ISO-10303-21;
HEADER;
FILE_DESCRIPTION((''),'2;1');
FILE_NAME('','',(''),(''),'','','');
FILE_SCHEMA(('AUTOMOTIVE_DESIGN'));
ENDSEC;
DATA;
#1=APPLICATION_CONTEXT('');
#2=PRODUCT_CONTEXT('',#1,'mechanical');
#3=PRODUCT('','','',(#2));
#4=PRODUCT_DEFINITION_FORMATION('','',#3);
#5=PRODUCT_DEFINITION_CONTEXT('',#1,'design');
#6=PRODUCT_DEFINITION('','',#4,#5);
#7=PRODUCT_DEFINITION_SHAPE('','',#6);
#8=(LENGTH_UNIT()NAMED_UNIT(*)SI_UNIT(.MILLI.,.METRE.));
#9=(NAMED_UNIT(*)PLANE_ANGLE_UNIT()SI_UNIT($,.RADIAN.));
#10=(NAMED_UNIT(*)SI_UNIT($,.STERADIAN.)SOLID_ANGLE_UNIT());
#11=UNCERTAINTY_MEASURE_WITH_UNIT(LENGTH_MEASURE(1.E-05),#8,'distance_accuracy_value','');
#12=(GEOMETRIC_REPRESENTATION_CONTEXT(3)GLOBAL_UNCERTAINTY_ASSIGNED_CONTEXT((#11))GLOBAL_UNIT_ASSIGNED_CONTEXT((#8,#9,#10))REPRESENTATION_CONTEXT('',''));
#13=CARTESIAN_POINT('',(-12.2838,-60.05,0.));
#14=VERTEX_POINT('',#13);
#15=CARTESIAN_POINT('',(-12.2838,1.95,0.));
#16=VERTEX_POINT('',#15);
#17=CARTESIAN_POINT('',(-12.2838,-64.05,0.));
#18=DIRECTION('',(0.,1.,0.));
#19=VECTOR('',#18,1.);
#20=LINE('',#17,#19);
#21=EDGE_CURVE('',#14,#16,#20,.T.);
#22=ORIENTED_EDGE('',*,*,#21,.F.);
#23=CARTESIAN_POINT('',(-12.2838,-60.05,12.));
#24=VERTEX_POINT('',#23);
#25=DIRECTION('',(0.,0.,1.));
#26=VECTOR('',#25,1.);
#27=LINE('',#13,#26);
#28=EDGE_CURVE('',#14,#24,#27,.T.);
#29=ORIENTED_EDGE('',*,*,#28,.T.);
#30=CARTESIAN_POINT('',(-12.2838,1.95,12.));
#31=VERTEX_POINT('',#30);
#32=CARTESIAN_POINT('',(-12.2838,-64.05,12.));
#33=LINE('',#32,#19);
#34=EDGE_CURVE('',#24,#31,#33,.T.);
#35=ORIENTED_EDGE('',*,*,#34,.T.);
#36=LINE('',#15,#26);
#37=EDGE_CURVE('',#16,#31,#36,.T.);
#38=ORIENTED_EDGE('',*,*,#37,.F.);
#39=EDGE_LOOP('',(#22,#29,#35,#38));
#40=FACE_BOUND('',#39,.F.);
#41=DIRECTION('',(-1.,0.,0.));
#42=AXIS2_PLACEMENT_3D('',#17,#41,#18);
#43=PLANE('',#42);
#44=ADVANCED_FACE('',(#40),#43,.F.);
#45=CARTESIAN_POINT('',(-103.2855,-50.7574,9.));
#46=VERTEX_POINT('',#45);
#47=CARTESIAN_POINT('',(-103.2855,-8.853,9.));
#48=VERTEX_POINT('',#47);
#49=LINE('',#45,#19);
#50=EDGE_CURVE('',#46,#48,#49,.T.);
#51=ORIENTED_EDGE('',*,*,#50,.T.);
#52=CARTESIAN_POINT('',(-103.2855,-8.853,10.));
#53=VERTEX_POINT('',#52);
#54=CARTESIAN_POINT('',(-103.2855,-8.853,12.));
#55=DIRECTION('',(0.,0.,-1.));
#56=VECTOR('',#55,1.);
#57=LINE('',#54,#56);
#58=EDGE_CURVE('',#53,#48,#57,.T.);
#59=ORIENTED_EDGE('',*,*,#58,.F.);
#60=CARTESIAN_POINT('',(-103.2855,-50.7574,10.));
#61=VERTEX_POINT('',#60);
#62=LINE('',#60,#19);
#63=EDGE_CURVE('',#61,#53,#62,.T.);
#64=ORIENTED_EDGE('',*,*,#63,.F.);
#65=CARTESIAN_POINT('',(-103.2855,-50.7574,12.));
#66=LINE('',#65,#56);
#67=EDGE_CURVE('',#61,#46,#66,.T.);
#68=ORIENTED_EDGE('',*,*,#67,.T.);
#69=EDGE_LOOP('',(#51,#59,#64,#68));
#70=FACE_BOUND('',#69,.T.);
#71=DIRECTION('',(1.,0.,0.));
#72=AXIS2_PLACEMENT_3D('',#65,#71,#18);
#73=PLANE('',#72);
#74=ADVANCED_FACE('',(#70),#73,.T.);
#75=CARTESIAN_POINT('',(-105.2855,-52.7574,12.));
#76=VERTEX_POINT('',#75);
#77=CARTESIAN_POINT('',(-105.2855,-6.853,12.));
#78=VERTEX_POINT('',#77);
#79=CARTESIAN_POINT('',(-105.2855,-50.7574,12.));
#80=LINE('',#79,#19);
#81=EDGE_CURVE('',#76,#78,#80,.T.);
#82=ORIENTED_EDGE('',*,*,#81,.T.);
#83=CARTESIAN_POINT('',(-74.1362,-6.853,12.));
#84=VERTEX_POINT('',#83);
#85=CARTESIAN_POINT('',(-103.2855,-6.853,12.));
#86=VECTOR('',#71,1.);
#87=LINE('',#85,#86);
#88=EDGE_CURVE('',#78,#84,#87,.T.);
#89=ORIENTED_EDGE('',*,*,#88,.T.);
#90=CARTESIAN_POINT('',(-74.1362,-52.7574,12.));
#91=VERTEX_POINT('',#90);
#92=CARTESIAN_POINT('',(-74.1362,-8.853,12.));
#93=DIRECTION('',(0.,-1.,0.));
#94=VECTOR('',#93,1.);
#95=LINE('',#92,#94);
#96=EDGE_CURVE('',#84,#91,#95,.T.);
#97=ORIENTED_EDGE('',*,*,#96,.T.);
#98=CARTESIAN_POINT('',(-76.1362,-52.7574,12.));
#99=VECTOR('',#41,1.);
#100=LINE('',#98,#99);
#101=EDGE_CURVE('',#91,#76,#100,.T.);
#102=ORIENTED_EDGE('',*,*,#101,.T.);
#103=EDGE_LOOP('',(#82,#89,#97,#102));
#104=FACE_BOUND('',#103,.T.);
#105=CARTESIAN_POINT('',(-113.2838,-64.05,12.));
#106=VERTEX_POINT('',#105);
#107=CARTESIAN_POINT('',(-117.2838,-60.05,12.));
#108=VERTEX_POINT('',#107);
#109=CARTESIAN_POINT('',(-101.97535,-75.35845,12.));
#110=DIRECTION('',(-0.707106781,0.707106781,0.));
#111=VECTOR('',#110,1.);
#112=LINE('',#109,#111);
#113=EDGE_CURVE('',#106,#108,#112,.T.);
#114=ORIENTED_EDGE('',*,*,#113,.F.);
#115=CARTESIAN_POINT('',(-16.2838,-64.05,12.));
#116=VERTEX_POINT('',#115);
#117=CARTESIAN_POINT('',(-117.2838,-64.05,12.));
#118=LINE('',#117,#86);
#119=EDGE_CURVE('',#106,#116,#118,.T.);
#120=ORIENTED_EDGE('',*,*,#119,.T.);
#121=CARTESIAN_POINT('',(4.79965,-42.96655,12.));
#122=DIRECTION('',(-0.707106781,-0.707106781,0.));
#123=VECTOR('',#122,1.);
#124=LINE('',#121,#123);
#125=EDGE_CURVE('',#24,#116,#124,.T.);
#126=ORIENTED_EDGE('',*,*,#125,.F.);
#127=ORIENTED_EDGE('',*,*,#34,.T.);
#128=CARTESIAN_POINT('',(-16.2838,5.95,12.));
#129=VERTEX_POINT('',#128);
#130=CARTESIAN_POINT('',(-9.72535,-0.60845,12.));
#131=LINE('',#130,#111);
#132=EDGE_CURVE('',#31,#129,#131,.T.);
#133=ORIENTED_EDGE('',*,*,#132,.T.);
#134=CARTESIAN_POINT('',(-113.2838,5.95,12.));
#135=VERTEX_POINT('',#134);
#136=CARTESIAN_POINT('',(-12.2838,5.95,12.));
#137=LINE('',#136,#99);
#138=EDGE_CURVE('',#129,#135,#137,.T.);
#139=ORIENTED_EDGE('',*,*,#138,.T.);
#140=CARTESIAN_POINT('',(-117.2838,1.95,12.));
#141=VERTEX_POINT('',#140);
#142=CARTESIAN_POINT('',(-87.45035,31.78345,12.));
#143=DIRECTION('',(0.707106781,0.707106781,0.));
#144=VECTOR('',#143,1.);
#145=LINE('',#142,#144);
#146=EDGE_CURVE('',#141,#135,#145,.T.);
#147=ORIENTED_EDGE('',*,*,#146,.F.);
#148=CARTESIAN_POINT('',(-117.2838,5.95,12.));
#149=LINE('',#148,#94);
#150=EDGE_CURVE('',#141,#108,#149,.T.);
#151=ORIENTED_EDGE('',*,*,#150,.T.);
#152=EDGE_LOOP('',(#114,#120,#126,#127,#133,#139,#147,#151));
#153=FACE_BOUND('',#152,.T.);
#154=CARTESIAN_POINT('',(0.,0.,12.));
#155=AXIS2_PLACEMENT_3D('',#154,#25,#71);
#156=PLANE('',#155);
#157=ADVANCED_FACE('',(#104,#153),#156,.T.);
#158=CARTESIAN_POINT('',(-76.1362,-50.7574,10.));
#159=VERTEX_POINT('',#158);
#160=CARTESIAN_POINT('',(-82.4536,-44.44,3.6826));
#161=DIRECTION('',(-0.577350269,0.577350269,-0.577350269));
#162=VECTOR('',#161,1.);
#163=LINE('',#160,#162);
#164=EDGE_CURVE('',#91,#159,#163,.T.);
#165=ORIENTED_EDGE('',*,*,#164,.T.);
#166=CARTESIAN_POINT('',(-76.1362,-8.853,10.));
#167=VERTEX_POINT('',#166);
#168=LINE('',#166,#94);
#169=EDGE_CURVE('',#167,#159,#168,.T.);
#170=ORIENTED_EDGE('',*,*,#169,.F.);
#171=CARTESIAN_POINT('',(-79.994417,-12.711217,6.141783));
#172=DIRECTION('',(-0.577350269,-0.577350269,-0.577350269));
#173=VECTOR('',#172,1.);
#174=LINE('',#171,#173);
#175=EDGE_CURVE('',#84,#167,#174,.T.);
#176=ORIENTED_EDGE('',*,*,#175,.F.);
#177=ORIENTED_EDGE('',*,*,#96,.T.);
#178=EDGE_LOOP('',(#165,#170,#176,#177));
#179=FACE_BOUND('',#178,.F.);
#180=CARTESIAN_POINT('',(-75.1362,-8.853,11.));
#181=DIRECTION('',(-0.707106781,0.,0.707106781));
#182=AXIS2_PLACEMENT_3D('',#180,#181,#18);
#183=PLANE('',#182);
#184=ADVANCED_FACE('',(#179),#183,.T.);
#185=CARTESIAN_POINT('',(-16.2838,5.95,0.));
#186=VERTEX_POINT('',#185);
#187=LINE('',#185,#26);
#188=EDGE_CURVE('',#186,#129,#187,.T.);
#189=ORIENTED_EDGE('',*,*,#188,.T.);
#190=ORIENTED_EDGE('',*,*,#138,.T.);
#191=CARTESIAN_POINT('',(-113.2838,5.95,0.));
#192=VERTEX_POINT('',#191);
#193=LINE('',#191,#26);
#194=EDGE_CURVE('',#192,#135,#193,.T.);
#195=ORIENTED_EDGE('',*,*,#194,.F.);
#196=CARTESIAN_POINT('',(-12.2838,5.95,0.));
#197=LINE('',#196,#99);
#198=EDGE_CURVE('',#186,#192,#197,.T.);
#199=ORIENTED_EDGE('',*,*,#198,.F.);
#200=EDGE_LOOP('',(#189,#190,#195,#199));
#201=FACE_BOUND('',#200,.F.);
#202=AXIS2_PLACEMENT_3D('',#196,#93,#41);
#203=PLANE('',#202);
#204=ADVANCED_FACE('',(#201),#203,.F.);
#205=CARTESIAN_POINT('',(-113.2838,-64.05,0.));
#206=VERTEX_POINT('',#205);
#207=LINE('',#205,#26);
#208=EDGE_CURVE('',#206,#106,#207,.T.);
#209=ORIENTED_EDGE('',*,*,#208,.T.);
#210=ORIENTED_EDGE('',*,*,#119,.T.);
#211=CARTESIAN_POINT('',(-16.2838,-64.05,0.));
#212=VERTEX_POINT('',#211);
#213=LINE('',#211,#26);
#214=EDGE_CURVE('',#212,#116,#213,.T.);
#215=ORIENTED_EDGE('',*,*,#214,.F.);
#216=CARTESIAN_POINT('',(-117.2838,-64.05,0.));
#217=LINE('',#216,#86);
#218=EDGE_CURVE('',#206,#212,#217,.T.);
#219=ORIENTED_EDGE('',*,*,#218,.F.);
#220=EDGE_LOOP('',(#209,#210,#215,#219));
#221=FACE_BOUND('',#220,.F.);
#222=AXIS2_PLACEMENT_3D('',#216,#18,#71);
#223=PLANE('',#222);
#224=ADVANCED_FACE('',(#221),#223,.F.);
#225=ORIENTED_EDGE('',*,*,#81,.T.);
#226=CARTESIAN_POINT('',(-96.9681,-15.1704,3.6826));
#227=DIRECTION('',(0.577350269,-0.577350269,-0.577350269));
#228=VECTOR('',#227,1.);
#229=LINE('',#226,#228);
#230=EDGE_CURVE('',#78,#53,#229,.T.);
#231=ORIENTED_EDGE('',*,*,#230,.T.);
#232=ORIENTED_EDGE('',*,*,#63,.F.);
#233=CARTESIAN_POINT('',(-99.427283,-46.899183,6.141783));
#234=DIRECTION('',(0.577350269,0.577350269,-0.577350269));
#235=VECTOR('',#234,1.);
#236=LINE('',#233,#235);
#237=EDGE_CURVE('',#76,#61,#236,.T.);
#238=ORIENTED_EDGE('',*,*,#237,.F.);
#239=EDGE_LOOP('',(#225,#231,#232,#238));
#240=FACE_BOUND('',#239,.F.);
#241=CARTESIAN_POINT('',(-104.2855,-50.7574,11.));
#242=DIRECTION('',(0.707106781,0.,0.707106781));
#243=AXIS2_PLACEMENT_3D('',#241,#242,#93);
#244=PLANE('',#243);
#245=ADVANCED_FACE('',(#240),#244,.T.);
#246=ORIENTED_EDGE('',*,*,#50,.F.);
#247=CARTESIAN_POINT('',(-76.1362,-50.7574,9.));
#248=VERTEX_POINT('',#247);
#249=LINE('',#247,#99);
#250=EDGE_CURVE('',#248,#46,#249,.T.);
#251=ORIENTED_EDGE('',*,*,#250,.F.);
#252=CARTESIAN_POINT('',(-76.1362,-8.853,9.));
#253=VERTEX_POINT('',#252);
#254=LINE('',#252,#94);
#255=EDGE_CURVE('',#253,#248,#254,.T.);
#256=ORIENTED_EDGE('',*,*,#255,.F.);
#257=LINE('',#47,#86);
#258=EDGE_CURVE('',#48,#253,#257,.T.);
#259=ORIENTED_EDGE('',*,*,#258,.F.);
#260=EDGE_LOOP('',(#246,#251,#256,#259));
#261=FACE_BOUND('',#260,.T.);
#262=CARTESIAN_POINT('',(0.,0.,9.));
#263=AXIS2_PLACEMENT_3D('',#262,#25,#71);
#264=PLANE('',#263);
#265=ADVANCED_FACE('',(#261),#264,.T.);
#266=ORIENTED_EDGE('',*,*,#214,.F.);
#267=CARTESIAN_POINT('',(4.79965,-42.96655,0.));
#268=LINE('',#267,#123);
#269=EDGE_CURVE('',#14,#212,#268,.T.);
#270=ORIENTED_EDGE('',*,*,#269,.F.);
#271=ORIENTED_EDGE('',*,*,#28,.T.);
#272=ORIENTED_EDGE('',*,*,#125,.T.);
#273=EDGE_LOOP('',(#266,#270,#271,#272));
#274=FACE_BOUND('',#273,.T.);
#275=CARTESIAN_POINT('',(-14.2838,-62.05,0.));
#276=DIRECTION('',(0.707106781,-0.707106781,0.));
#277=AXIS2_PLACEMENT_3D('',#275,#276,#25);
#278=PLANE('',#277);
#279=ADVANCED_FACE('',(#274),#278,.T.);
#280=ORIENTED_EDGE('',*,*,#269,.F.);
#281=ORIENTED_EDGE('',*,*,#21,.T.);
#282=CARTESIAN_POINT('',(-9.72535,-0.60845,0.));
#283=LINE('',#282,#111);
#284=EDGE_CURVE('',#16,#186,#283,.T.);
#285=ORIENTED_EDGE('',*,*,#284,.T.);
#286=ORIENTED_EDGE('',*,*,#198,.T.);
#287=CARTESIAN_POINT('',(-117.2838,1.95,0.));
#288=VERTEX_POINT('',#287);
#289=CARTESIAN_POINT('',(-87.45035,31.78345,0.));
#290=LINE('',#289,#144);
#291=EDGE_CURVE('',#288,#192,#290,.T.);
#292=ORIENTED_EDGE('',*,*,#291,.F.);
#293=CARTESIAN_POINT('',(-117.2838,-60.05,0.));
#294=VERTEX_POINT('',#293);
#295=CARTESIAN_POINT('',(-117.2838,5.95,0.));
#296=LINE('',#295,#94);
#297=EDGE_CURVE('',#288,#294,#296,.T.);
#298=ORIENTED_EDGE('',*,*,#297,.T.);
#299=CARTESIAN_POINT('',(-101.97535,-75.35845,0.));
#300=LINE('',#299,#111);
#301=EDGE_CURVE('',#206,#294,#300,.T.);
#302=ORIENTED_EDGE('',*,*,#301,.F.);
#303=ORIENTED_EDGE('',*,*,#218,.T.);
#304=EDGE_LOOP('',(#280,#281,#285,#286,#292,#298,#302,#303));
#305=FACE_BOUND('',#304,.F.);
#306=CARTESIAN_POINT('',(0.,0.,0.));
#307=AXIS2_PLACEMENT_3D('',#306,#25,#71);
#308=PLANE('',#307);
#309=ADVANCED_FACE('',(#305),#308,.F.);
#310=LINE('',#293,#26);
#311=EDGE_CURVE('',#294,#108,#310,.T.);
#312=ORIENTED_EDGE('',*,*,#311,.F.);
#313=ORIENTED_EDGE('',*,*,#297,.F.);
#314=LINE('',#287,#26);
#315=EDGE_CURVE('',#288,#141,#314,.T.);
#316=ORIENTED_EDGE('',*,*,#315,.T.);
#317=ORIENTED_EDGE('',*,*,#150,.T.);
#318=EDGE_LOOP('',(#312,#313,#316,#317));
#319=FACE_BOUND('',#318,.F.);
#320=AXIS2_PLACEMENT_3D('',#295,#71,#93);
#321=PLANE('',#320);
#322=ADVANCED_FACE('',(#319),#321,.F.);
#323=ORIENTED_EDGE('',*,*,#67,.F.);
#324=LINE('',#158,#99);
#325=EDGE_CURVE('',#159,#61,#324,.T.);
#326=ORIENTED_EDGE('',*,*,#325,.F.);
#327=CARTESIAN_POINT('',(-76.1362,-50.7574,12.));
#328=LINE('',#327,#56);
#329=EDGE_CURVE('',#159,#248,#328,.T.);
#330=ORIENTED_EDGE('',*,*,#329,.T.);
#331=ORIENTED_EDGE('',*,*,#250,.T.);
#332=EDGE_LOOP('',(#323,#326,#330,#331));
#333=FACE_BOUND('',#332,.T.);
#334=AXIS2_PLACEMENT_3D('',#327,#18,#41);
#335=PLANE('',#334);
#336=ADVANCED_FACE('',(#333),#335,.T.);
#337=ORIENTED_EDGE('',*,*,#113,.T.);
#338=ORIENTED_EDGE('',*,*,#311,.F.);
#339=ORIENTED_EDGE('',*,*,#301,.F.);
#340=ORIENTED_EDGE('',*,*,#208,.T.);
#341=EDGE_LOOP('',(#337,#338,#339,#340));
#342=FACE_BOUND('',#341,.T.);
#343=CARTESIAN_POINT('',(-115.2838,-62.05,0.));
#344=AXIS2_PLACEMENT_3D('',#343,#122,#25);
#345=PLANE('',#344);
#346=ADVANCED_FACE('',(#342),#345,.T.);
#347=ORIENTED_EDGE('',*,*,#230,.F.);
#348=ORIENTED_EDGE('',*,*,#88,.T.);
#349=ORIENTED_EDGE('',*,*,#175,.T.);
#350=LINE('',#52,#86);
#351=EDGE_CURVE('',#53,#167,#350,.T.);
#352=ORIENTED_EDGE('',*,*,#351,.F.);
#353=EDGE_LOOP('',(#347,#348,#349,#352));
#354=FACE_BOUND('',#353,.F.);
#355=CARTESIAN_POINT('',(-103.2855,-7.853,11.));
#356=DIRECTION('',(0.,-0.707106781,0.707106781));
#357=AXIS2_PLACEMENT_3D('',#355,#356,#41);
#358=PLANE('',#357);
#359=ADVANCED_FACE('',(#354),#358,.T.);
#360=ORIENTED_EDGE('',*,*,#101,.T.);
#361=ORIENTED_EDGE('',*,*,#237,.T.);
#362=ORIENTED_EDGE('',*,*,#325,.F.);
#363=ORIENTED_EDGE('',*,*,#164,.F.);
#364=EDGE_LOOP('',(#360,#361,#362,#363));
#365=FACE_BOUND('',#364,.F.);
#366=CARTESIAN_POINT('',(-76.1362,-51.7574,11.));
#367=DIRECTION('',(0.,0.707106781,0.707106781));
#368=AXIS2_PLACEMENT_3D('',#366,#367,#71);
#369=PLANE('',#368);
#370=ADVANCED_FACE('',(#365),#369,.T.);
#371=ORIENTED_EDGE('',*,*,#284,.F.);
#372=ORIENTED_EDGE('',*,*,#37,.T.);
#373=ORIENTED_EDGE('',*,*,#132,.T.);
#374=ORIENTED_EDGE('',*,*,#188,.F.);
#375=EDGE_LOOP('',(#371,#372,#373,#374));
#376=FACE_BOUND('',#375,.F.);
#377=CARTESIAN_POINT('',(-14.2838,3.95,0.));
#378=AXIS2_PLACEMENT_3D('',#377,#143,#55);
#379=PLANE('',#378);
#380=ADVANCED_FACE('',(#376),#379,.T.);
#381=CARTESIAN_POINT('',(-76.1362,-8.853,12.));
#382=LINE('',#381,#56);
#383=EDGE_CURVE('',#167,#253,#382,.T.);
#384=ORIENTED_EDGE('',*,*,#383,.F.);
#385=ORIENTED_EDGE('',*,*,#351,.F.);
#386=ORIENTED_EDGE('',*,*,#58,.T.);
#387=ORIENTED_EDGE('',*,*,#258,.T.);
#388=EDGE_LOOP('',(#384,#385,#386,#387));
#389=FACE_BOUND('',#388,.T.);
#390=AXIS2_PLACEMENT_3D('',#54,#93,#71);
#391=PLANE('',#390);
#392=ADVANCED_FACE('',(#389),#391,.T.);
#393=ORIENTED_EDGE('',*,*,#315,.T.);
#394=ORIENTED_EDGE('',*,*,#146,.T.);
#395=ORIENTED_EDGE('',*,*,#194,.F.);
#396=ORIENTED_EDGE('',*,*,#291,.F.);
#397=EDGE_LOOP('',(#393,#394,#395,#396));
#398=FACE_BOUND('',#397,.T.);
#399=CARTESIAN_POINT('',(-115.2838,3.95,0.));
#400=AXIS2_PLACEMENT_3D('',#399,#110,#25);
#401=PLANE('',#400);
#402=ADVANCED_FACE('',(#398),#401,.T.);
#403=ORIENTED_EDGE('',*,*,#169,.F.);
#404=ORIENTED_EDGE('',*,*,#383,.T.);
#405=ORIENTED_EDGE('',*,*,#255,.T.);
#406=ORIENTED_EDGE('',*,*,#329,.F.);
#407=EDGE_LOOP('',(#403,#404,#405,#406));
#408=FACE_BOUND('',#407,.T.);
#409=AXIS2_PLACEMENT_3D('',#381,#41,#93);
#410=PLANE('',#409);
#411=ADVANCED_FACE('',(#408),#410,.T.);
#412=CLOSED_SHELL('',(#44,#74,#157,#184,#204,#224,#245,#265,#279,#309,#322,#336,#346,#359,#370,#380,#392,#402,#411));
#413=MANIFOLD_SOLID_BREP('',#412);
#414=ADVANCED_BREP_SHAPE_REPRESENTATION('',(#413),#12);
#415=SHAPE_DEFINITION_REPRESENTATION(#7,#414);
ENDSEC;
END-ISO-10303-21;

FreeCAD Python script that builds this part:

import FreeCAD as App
import Part
import Sketcher
from FreeCAD import Vector
Q = App.Units.Quantity


def edges_at(feature, points):
    """Names of the edges that pass closest to the given points."""
    edges = feature.Shape.Edges
    near = lambda p: min(range(len(edges)), key=lambda i: edges[i].distToShape(Part.Vertex(*p))[0])
    return sorted({f"Edge{near(p) + 1}" for p in points})

doc = App.newDocument("Part")
body = doc.addObject("PartDesign::Body", "Body")

# Sketch on XY plane
sketch1 = body.newObject("Sketcher::SketchObject", "Sketch")
sketch1.AttachmentSupport = (doc.getObject("XY_Plane"), [""])
sketch1.MapMode = "FlatFace"
sketch1.addGeometry(Part.LineSegment(Vector(-12, -64, 0), Vector(-12, 6, 0)), False)
sketch1.addGeometry(Part.LineSegment(Vector(-12, 6, 0), Vector(-117, 6, 0)), False)
sketch1.addGeometry(Part.LineSegment(Vector(-117, 6, 0), Vector(-117, -64, 0)), False)
sketch1.addGeometry(Part.LineSegment(Vector(-117, -64, 0), Vector(-12, -64, 0)), False)
sketch1.addConstraint(Sketcher.Constraint("Coincident", 0, 2, 1, 1))
sketch1.addConstraint(Sketcher.Constraint("Coincident", 1, 2, 2, 1))
sketch1.addConstraint(Sketcher.Constraint("Coincident", 2, 2, 3, 1))
sketch1.addConstraint(Sketcher.Constraint("Coincident", 3, 2, 0, 1))
sketch1.addConstraint(Sketcher.Constraint("Vertical", 0))
sketch1.addConstraint(Sketcher.Constraint("Horizontal", 1))
sketch1.addConstraint(Sketcher.Constraint("Vertical", 2))
sketch1.addConstraint(Sketcher.Constraint("Horizontal", 3))
sketch1.addConstraint(Sketcher.Constraint("DistanceX", 1, 2, 1, 1, Q("105 mm")))
sketch1.addConstraint(Sketcher.Constraint("DistanceY", 0, 1, 0, 2, Q("70 mm")))
sketch1.addConstraint(Sketcher.Constraint("DistanceY", -1, 1, 0, 2, Q("5.95 mm")))
sketch1.addConstraint(Sketcher.Constraint("DistanceX", 0, 2, -1, 1, Q("12.2838 mm")))
pad1 = body.newObject("PartDesign::Pad", "Pad")
pad1.Profile = sketch1
pad1.Length = 12
doc.recompute()

chamfer = body.newObject("PartDesign::Chamfer", "Chamfer")
chamfer.Base = (pad1, edges_at(pad1, [
    (-12.284, 5.95, 6),
    (-12.284, -64.05, 6),
    (-117.284, -64.05, 6),
    (-117.284, 5.95, 6),
]))
chamfer.Size = 4

# Sketch on XY plane
sketch2 = body.newObject("Sketcher::SketchObject", "Sketch001")
sketch2.AttachmentSupport = (doc.getObject("XY_Plane"), [""])
sketch2.MapMode = "FlatFace"
sketch2.AttachmentOffset = App.Placement(Vector(0, 0, 12), App.Rotation())
sketch2.addGeometry(Part.LineSegment(Vector(-76, -9, 0), Vector(-103, -9, 0)), False)
sketch2.addGeometry(Part.LineSegment(Vector(-103, -9, 0), Vector(-103, -51, 0)), False)
sketch2.addGeometry(Part.LineSegment(Vector(-103, -51, 0), Vector(-76, -51, 0)), False)
sketch2.addGeometry(Part.LineSegment(Vector(-76, -51, 0), Vector(-76, -9, 0)), False)
sketch2.addConstraint(Sketcher.Constraint("Coincident", 0, 2, 1, 1))
sketch2.addConstraint(Sketcher.Constraint("Coincident", 1, 2, 2, 1))
sketch2.addConstraint(Sketcher.Constraint("Coincident", 2, 2, 3, 1))
sketch2.addConstraint(Sketcher.Constraint("Coincident", 3, 2, 0, 1))
sketch2.addConstraint(Sketcher.Constraint("Horizontal", 0))
sketch2.addConstraint(Sketcher.Constraint("Vertical", 1))
sketch2.addConstraint(Sketcher.Constraint("Horizontal", 2))
sketch2.addConstraint(Sketcher.Constraint("Vertical", 3))
sketch2.addConstraint(Sketcher.Constraint("DistanceX", 0, 2, 0, 1, Q("27.1493 mm")))
sketch2.addConstraint(Sketcher.Constraint("DistanceY", 1, 2, 1, 1, Q("41.9044 mm")))
sketch2.addConstraint(Sketcher.Constraint("DistanceY", 0, 2, -1, 1, Q("8.853 mm")))
sketch2.addConstraint(Sketcher.Constraint("DistanceX", 0, 2, -1, 1, Q("103.2855 mm")))
pocket1 = body.newObject("PartDesign::Pocket", "Pocket")
pocket1.Profile = sketch2
pocket1.Length = 3
doc.recompute()

chamfer2 = body.newObject("PartDesign::Chamfer", "Chamfer001")
chamfer2.Base = (pocket1, edges_at(pocket1, [
    (-103.285, -29.805, 12),
    (-89.711, -8.853, 12),
    (-76.136, -29.805, 12),
    (-89.711, -50.757, 12),
]))
chamfer2.Size = 2

doc.recompute()
